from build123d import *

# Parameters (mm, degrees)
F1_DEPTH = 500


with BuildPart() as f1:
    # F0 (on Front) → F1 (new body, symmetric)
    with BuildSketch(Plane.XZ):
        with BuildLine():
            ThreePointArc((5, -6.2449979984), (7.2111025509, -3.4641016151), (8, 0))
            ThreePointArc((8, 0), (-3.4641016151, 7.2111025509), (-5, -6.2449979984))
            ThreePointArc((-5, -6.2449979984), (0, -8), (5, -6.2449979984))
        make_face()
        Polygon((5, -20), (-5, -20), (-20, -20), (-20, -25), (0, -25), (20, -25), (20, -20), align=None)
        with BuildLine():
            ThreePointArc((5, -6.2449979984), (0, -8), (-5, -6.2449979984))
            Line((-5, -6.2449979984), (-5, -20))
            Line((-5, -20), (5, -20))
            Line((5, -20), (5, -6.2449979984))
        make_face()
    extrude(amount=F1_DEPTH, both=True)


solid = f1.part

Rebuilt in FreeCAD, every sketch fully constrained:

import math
import FreeCAD as App
import Part
import Sketcher
Q = App.Units.Quantity

doc = App.newDocument("Part")
params = doc.addObject("Spreadsheet::Sheet", "Params")
for row, (alias, value) in enumerate([
    ("sketch1_radius", "8 mm"),
    ("sketch1_width", "15 mm"),
    ("sketch1_width2", "40 mm"),
    ("sketch1_height", "5 mm"),
    ("pad1_length", "1000 mm"),
], start=1):
    params.set(f"A{row}", alias)
    params.set(f"B{row}", "=" + value)
    params.setAlias(f"B{row}", alias)

body = doc.addObject("PartDesign::Body", "Body")

# Sketch on XZ plane
sketch1 = body.newObject("Sketcher::SketchObject", "Sketch")
sketch1.AttachmentSupport = (doc.getObject("XZ_Plane"), [""])
sketch1.MapMode = "FlatFace"
sketch1.addGeometry(Part.ArcOfCircle(Part.Circle(App.Vector(0, 0, 0), App.Vector(0, 0, 1), 8), math.radians(-51.317813), math.radians(0)), False)
sketch1.addGeometry(Part.ArcOfCircle(Part.Circle(App.Vector(0, 0, 0), App.Vector(0, 0, 1), 8), math.radians(0), math.radians(231.317813)), False)
sketch1.addGeometry(Part.LineSegment(App.Vector(-5, -6.244998, 0), App.Vector(-5, -20, 0)), False)
sketch1.addGeometry(Part.LineSegment(App.Vector(-5, -20, 0), App.Vector(-20, -20, 0)), False)
sketch1.addGeometry(Part.LineSegment(App.Vector(-20, -20, 0), App.Vector(-20, -25, 0)), False)
sketch1.addGeometry(Part.LineSegment(App.Vector(-20, -25, 0), App.Vector(20, -25, 0)), False)
sketch1.addGeometry(Part.LineSegment(App.Vector(20, -25, 0), App.Vector(20, -20, 0)), False)
sketch1.addGeometry(Part.LineSegment(App.Vector(20, -20, 0), App.Vector(5, -20, 0)), False)
sketch1.addGeometry(Part.LineSegment(App.Vector(5, -20, 0), App.Vector(5, -6.244998, 0)), False)
sketch1.addConstraint(Sketcher.Constraint("Tangent", 0, 2, 1, 1))
sketch1.addConstraint(Sketcher.Constraint("Coincident", 1, 2, 2, 1))
sketch1.addConstraint(Sketcher.Constraint("Coincident", 2, 2, 3, 1))
sketch1.addConstraint(Sketcher.Constraint("Coincident", 3, 2, 4, 1))
sketch1.addConstraint(Sketcher.Constraint("Coincident", 4, 2, 5, 1))
sketch1.addConstraint(Sketcher.Constraint("Coincident", 5, 2, 6, 1))
sketch1.addConstraint(Sketcher.Constraint("Coincident", 6, 2, 7, 1))
sketch1.addConstraint(Sketcher.Constraint("Coincident", 7, 2, 8, 1))
sketch1.addConstraint(Sketcher.Constraint("Coincident", 8, 2, 0, 1))
sketch1.addConstraint(Sketcher.Constraint("Vertical", 2))
sketch1.addConstraint(Sketcher.Constraint("Horizontal", 3))
sketch1.addConstraint(Sketcher.Constraint("Vertical", 4))
sketch1.addConstraint(Sketcher.Constraint("Horizontal", 5))
sketch1.addConstraint(Sketcher.Constraint("Vertical", 6))
sketch1.addConstraint(Sketcher.Constraint("Horizontal", 7))
sketch1.addConstraint(Sketcher.Constraint("Vertical", 8))
sketch1.addConstraint(Sketcher.Constraint("Coincident", 0, 3, -1, 1))
sketch1.addConstraint(Sketcher.Constraint("Equal", 0, 1))
sketch1.addConstraint(Sketcher.Constraint("Symmetric", 3, 2, 6, 2, -2))
sketch1.addConstraint(Sketcher.Constraint("PointOnObject", 0, 2, -1))
sketch1.addConstraint(Sketcher.Constraint("Horizontal", 1, 2, 8, 2))
sketch1.addConstraint(Sketcher.Constraint("Radius", 0, Q("8 mm")))
sketch1.addConstraint(Sketcher.Constraint("DistanceX", 3, 2, 3, 1, Q("15 mm")))
sketch1.addConstraint(Sketcher.Constraint("DistanceX", 5, 1, 5, 2, Q("40 mm")))
sketch1.addConstraint(Sketcher.Constraint("DistanceY", 4, 2, 4, 1, Q("5 mm")))
sketch1.addConstraint(Sketcher.Constraint("DistanceY", 2, 2, -1, 1, Q("20 mm")))
sketch1.setExpression("Constraints[21]", "Params.sketch1_radius")
sketch1.setExpression("Constraints[22]", "Params.sketch1_width")
sketch1.setExpression("Constraints[23]", "Params.sketch1_width2")
sketch1.setExpression("Constraints[24]", "Params.sketch1_height")
pad1 = body.newObject("PartDesign::Pad", "Pad")
pad1.Profile = sketch1
pad1.setExpression("Length", "Params.pad1_length")
pad1.Midplane = True

doc.recompute()
